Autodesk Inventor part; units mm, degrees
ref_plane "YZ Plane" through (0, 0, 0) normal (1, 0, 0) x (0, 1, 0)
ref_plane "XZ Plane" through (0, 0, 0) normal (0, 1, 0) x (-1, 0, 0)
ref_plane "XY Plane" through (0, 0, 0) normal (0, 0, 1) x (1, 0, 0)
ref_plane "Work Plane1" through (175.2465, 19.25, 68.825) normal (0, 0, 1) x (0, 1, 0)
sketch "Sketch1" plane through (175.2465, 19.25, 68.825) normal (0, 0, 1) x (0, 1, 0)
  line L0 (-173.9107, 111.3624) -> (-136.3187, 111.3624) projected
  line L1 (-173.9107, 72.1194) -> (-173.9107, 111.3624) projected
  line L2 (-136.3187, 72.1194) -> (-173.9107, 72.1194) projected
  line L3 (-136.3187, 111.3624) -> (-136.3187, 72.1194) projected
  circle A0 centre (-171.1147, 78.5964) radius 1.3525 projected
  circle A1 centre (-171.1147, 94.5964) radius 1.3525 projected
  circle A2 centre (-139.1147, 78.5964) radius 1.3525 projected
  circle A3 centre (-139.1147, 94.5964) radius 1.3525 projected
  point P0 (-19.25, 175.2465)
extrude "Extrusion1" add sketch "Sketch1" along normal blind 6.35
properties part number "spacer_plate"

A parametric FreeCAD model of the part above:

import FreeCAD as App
import Part
import Sketcher
Q = App.Units.Quantity


def add_polygon(sketch, points):
    """Adds a closed chain of lines whose ends are joined by coincident constraints."""
    first, n = sketch.GeometryCount, len(points)
    for a, b in zip(points, points[1:] + points[:1]):
        sketch.addGeometry(Part.LineSegment(App.Vector(*a, 0), App.Vector(*b, 0)), False)
    for i in range(n):
        sketch.addConstraint(Sketcher.Constraint("Coincident", first + i, 2, first + (i + 1) % n, 1))

doc = App.newDocument("Part")
body = doc.addObject("PartDesign::Body", "Body")

sketch1 = body.newObject("Sketcher::SketchObject", "Sketch")
sketch1.AttachmentSupport = (doc.getObject("XY_Plane"), [""])
sketch1.MapMode = "FlatFace"
sketch1.AttachmentOffset = App.Placement(App.Vector(0, 0, 68.825), App.Rotation())
add_polygon(sketch1, [(63.9, -117.1), (63.9, -154.7), (103.1, -154.7), (103.1, -117.1)])
sketch1.addGeometry(Part.Circle(App.Vector(96.7, -151.9, 0), App.Vector(0, 0, 1), 1.4), False)
sketch1.addGeometry(Part.Circle(App.Vector(96.7, -119.9, 0), App.Vector(0, 0, 1), 1.4), False)
sketch1.addGeometry(Part.Circle(App.Vector(80.7, -151.9, 0), App.Vector(0, 0, 1), 1.4), False)
sketch1.addGeometry(Part.Circle(App.Vector(80.7, -119.9, 0), App.Vector(0, 0, 1), 1.4), False)
sketch1.addConstraint([
    Sketcher.Constraint("Vertical", 0),
    Sketcher.Constraint("Horizontal", 1),
    Sketcher.Constraint("Vertical", 2),
    Sketcher.Constraint("Horizontal", 3),
    Sketcher.Constraint("Equal", 4, 5),
    Sketcher.Constraint("Equal", 5, 6),
    Sketcher.Constraint("Equal", 6, 7),
    Sketcher.Constraint("Horizontal", 4, 3, 6, 3),
    Sketcher.Constraint("Horizontal", 5, 3, 7, 3),
    Sketcher.Constraint("Vertical", 4, 3, 5, 3),
    Sketcher.Constraint("Vertical", 6, 3, 7, 3),
    Sketcher.Constraint("Diameter", 4, Q("0.1065 in")),
    Sketcher.Constraint("DistanceY", 0, 2, 0, 1, Q("1.48 in")),
    Sketcher.Constraint("DistanceX", 1, 1, 1, 2, Q("1.545 in")),
    Sketcher.Constraint("DistanceX", 0, 2, 4, 3, Q("1.29 in")),
    Sketcher.Constraint("DistanceY", 0, 2, -1, 1, Q("6.089 in")),
    Sketcher.Constraint("DistanceX", -1, 1, 6, 3, Q("3.1752 in")),
    Sketcher.Constraint("DistanceX", -1, 1, 4, 3, 96.65),
    Sketcher.Constraint("DistanceY", 4, 3, -1, 1, 151.8647),
    Sketcher.Constraint("DistanceY", 5, 3, -1, 1, 119.8647),
])
pad1 = body.newObject("PartDesign::Pad", "Pad")
pad1.Profile = sketch1
pad1.Length = Q("0.25 in")

doc.recompute()
